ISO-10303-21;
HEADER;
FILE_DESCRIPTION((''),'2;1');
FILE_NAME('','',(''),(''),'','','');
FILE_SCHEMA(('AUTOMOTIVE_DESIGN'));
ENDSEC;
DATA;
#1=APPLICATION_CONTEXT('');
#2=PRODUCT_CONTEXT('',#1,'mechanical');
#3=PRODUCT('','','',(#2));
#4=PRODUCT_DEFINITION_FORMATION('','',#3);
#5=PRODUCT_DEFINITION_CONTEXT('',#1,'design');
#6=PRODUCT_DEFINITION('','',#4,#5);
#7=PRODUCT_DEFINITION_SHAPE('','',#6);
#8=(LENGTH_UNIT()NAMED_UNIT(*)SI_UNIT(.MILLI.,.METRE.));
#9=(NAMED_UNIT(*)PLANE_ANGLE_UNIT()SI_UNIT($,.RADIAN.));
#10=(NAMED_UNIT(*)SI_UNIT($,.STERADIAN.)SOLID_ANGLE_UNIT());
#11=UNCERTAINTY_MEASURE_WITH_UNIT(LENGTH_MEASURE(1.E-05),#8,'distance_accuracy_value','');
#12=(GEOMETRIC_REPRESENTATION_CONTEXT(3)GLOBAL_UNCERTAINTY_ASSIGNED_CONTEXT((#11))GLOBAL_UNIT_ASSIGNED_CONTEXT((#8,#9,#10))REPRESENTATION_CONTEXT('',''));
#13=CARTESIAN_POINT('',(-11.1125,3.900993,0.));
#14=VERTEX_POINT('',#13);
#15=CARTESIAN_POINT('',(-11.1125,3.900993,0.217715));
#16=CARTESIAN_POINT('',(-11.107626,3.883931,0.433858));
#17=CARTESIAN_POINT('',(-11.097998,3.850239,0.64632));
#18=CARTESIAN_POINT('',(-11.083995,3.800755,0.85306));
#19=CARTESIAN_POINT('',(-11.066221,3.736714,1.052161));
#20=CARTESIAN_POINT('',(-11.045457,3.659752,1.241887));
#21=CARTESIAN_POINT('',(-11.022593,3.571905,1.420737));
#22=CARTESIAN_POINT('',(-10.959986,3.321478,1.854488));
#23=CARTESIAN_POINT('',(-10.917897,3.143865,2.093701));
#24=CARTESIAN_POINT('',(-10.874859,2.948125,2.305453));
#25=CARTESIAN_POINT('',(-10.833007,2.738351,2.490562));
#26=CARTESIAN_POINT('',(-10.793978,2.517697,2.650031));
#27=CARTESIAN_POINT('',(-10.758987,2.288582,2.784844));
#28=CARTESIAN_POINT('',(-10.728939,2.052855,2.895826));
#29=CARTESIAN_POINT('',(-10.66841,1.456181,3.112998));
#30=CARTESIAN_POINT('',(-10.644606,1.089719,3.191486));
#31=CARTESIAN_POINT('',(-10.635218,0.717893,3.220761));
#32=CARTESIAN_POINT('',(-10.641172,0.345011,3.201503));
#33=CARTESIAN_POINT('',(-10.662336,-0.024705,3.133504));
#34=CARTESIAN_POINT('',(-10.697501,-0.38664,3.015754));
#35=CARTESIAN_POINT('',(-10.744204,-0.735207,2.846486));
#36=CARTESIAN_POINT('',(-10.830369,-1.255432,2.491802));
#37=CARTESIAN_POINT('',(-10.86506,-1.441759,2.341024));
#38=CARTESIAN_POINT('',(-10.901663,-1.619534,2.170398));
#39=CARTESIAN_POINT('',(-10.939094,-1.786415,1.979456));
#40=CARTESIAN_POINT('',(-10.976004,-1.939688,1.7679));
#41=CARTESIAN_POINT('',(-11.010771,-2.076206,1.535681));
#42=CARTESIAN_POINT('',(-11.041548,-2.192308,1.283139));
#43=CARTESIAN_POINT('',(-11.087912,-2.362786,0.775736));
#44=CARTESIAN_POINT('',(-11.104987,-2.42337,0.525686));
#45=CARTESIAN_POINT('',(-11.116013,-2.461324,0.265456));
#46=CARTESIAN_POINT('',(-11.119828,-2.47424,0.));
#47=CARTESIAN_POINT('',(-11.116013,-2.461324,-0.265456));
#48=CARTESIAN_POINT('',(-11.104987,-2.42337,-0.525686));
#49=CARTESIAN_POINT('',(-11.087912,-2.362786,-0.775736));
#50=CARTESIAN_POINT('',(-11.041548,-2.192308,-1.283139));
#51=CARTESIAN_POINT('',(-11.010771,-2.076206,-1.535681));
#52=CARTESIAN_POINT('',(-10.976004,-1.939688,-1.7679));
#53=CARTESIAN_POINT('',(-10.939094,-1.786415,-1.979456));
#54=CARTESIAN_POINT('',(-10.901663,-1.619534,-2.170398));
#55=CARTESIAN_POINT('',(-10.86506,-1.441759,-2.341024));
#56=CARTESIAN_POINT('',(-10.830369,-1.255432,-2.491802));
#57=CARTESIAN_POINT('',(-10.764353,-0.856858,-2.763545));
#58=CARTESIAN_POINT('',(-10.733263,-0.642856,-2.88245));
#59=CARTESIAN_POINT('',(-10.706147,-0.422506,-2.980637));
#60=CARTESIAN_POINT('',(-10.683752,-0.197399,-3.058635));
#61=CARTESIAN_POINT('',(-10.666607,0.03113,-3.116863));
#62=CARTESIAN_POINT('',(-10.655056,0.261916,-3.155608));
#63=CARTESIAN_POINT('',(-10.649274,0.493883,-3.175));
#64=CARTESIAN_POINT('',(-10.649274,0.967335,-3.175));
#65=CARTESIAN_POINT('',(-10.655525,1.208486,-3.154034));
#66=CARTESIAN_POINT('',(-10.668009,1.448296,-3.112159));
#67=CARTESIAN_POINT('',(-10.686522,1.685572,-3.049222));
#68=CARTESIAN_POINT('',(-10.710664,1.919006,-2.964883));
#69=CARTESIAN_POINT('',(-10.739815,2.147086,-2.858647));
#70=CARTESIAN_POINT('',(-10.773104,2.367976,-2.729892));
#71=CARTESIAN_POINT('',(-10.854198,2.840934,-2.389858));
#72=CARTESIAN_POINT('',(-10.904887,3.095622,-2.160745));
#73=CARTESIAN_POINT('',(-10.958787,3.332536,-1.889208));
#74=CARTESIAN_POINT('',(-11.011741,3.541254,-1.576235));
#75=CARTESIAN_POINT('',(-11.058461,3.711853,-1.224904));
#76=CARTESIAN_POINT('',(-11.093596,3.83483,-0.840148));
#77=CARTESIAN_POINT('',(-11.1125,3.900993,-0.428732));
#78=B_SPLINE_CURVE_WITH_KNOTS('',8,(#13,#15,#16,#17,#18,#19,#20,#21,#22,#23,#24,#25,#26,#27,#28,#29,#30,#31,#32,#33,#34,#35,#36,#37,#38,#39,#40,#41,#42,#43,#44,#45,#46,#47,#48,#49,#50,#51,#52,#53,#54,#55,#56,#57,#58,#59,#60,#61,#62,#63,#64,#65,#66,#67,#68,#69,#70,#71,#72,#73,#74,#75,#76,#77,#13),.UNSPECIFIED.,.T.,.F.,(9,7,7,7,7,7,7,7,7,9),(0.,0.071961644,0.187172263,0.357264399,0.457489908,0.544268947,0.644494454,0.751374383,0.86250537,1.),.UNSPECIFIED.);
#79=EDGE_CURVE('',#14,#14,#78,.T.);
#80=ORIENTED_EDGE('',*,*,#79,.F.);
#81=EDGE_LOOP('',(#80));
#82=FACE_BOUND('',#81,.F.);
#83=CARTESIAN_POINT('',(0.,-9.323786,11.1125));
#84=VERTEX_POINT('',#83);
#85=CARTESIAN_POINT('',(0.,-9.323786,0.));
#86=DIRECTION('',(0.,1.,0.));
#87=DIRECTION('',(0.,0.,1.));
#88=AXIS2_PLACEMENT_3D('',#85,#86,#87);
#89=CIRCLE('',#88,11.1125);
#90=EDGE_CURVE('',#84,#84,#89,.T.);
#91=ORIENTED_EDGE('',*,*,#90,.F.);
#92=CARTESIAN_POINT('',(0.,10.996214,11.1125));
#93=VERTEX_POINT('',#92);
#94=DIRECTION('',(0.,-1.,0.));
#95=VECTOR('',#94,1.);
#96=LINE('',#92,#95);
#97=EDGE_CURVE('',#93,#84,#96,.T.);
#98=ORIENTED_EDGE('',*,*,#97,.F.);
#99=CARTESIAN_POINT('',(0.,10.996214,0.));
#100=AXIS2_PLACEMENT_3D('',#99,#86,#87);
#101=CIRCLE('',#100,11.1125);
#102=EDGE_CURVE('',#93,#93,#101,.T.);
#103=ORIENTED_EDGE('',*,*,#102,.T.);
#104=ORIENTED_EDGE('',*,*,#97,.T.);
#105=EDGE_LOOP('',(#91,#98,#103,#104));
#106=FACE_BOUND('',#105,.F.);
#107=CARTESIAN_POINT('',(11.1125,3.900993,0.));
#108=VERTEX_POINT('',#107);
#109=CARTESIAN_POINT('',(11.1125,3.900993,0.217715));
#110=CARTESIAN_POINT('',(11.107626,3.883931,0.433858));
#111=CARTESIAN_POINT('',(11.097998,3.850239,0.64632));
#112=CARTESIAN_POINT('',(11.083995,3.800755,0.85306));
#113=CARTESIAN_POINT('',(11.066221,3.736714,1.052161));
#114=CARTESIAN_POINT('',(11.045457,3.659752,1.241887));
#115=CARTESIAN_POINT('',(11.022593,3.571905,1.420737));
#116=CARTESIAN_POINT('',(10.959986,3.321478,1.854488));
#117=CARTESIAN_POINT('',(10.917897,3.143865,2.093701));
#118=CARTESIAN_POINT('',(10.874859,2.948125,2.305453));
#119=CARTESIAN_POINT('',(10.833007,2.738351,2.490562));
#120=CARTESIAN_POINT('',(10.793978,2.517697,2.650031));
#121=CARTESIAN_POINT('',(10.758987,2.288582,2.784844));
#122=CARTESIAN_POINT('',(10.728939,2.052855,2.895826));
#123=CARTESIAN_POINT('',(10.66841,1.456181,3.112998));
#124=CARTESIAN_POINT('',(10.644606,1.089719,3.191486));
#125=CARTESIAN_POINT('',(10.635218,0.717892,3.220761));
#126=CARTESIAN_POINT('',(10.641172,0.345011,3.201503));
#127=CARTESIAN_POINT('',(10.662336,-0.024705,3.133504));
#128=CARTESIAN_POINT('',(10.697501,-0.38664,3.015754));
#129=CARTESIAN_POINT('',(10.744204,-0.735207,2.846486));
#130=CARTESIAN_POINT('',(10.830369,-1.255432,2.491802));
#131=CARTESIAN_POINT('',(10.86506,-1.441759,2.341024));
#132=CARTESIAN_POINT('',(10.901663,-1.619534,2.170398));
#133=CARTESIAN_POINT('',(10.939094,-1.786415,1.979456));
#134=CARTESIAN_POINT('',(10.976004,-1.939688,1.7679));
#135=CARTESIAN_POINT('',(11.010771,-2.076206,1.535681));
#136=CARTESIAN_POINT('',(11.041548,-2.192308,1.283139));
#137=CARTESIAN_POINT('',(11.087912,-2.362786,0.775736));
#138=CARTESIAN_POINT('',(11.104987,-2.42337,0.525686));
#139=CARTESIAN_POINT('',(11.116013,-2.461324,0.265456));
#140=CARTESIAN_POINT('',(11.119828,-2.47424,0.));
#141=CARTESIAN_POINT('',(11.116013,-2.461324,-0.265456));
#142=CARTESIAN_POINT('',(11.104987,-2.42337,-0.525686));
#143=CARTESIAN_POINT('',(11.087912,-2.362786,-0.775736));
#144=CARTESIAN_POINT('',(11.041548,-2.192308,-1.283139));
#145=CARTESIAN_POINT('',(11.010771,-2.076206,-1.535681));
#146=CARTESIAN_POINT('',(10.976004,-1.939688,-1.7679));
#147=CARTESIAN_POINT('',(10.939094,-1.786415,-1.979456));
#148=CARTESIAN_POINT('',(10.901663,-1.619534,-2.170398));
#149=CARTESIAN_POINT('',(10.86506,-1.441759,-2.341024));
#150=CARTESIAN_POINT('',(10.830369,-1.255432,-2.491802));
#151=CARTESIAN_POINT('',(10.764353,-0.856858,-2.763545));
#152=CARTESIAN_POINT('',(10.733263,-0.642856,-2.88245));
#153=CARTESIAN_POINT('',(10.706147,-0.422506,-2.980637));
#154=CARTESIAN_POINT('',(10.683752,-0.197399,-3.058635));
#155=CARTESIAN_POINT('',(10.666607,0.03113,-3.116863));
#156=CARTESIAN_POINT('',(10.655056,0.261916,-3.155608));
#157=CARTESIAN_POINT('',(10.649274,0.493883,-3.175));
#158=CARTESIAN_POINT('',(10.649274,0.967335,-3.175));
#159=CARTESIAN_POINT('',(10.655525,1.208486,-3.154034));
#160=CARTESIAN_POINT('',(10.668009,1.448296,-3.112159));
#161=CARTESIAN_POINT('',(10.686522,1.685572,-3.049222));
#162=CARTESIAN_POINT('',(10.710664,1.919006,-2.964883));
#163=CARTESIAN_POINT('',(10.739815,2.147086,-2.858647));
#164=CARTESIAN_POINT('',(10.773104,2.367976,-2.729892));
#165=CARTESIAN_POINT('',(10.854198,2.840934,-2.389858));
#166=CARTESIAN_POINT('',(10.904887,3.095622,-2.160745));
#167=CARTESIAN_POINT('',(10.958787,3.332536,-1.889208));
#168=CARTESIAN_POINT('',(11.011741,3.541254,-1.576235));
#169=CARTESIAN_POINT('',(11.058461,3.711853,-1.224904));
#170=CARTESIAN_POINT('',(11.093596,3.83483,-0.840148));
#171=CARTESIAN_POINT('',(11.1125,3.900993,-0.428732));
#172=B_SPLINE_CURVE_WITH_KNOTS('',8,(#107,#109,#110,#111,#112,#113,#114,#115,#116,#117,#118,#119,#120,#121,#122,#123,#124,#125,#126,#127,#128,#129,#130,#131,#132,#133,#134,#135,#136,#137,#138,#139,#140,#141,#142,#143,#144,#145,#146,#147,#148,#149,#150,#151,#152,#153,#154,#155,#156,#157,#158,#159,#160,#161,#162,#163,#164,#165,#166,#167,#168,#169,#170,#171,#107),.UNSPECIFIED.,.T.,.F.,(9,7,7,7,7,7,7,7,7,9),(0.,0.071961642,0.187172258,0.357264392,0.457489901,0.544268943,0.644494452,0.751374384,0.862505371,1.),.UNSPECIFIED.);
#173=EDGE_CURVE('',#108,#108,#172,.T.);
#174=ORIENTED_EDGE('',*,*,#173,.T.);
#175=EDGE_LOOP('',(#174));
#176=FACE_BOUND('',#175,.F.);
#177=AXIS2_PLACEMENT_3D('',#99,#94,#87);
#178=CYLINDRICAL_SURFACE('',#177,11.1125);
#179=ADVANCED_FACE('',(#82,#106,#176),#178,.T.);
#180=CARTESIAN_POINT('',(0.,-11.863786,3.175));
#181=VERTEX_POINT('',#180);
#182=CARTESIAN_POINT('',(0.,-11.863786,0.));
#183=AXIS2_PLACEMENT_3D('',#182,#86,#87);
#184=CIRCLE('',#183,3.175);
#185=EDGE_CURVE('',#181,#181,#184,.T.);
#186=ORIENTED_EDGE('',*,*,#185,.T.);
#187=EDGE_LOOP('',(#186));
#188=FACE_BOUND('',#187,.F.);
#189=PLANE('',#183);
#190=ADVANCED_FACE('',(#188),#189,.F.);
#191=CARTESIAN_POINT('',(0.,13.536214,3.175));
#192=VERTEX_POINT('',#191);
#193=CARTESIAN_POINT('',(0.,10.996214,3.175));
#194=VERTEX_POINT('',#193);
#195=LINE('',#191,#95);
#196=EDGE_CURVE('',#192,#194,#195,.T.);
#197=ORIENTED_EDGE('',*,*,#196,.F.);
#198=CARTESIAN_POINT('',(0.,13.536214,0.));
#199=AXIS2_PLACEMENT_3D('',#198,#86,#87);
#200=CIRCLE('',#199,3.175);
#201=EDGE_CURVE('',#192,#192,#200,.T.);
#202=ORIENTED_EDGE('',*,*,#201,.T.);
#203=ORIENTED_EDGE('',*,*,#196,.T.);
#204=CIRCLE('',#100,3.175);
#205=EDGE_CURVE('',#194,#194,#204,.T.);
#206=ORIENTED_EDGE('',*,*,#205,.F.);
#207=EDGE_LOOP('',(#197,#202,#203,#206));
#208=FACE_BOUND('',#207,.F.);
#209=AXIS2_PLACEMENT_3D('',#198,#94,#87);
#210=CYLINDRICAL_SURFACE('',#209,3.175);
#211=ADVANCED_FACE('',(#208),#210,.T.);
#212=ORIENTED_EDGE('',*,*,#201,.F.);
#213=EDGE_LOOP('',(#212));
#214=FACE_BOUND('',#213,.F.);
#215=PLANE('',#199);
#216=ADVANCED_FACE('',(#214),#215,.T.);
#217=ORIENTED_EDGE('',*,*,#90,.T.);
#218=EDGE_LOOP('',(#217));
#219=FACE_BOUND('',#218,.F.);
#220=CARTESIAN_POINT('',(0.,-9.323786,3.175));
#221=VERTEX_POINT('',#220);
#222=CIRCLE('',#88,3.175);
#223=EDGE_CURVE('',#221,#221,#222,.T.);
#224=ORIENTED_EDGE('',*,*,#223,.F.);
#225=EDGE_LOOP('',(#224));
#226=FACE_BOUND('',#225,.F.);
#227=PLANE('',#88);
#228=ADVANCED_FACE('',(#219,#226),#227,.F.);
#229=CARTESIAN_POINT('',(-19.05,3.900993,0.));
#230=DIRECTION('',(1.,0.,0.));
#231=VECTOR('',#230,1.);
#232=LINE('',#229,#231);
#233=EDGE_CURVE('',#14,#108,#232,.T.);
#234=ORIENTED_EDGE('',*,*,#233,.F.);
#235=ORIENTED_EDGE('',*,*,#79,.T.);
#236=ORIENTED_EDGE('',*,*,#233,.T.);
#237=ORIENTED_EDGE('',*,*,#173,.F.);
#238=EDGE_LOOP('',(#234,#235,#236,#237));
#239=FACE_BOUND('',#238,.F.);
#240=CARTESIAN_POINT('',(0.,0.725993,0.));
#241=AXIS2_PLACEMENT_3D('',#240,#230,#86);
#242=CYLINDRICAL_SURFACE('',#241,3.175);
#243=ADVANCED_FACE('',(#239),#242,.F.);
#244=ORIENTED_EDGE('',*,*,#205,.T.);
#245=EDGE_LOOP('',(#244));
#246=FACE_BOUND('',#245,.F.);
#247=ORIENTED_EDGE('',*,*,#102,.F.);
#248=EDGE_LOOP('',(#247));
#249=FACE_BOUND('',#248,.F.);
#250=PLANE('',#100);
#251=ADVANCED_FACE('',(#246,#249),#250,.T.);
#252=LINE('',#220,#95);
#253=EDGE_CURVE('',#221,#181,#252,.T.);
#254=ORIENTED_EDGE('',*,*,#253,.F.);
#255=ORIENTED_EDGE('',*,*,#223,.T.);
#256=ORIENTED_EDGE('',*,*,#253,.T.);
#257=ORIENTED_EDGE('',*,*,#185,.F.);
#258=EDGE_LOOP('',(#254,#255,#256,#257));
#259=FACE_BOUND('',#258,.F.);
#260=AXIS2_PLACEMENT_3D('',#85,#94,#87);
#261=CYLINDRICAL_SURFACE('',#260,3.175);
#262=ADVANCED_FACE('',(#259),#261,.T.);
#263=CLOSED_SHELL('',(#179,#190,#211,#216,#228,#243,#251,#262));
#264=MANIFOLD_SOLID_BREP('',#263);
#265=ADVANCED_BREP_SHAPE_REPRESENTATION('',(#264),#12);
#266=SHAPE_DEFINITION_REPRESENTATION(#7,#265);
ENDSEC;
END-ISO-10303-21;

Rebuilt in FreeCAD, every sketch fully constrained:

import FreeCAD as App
import Part
import Sketcher
Q = App.Units.Quantity

doc = App.newDocument("Part")
body = doc.addObject("PartDesign::Body", "Body")

# Sketch on YZ plane
sketch1 = doc.addObject("Sketcher::SketchObject", "Sketch")
body.addObject(sketch1)
sketch1.AttachmentSupport = (doc.YZ_Plane, [""])
sketch1.MapMode = "FlatFace"
sketch1.addGeometry(Part.LineSegment(App.Vector(-11.9, 3.2, 0), App.Vector(-11.9, 0, 0)), False)
sketch1.addGeometry(Part.LineSegment(App.Vector(-11.9, 0, 0), App.Vector(13.5, 0, 0)), False)
sketch1.addGeometry(Part.LineSegment(App.Vector(13.5, 0, 0), App.Vector(13.5, 3.2, 0)), False)
sketch1.addGeometry(Part.LineSegment(App.Vector(13.5, 3.2, 0), App.Vector(11, 3.2, 0)), False)
sketch1.addGeometry(Part.LineSegment(App.Vector(11, 3.2, 0), App.Vector(11, 11.1, 0)), False)
sketch1.addGeometry(Part.LineSegment(App.Vector(11, 11.1, 0), App.Vector(-9.3, 11.1, 0)), False)
sketch1.addGeometry(Part.LineSegment(App.Vector(-9.3, 11.1, 0), App.Vector(-9.3, 3.2, 0)), False)
sketch1.addGeometry(Part.LineSegment(App.Vector(-9.3, 3.2, 0), App.Vector(-11.9, 3.2, 0)), False)
sketch1.addConstraint(Sketcher.Constraint("Coincident", 0, 2, 1, 1))
sketch1.addConstraint(Sketcher.Constraint("Coincident", 1, 2, 2, 1))
sketch1.addConstraint(Sketcher.Constraint("Coincident", 2, 2, 3, 1))
sketch1.addConstraint(Sketcher.Constraint("Coincident", 3, 2, 4, 1))
sketch1.addConstraint(Sketcher.Constraint("Coincident", 4, 2, 5, 1))
sketch1.addConstraint(Sketcher.Constraint("Coincident", 5, 2, 6, 1))
sketch1.addConstraint(Sketcher.Constraint("Coincident", 6, 2, 7, 1))
sketch1.addConstraint(Sketcher.Constraint("Coincident", 7, 2, 0, 1))
sketch1.addConstraint(Sketcher.Constraint("Vertical", 0))
sketch1.addConstraint(Sketcher.Constraint("Horizontal", 1))
sketch1.addConstraint(Sketcher.Constraint("Vertical", 2))
sketch1.addConstraint(Sketcher.Constraint("Horizontal", 3))
sketch1.addConstraint(Sketcher.Constraint("Vertical", 4))
sketch1.addConstraint(Sketcher.Constraint("Horizontal", 5))
sketch1.addConstraint(Sketcher.Constraint("Vertical", 6))
sketch1.addConstraint(Sketcher.Constraint("Horizontal", 7))
sketch1.addConstraint(Sketcher.Constraint("PointOnObject", 0, 2, -1))
sketch1.addConstraint(Sketcher.Constraint("Horizontal", 3, 2, 6, 2))
sketch1.addConstraint(Sketcher.Constraint("Equal", 3, 7))
sketch1.addConstraint(Sketcher.Constraint("DistanceX", 1, 1, 1, 2, Q("1 in")))
sketch1.addConstraint(Sketcher.Constraint("DistanceX", 3, 2, 3, 1, Q("0.1 in")))
sketch1.addConstraint(Sketcher.Constraint("DistanceY", 0, 2, 0, 1, Q("0.125 in")))
sketch1.addConstraint(Sketcher.Constraint("DistanceY", 4, 1, 4, 2, Q("0.3125 in")))
sketch1.addConstraint(Sketcher.Constraint("DistanceX", 0, 2, -1, 1, 11.863786))
revolution = doc.addObject("PartDesign::Revolution", "Revolution")
body.addObject(revolution)
revolution.Profile = sketch1
revolution.ReferenceAxis = (sketch1, ["H_Axis"])
revolution.Angle = 360

# Sketch on YZ plane
sketch2 = doc.addObject("Sketcher::SketchObject", "Sketch001")
body.addObject(sketch2)
sketch2.AttachmentSupport = (doc.YZ_Plane, [""])
sketch2.MapMode = "FlatFace"
sketch2.addGeometry(Part.Circle(App.Vector(0.7, 0, 0), App.Vector(0, 0, 1), 3.2), False)
sketch2.addConstraint(Sketcher.Constraint("PointOnObject", 0, 3, -1))
sketch2.addConstraint(Sketcher.Constraint("Diameter", 0, Q("0.25 in")))
sketch2.addConstraint(Sketcher.Constraint("DistanceX", -1, 1, 0, 3, 0.725993))
pocket1 = doc.addObject("PartDesign::Pocket", "Pocket")
body.addObject(pocket1)
pocket1.Profile = sketch2
pocket1.Length = Q("1.5 in")
pocket1.Midplane = True

doc.recompute()
